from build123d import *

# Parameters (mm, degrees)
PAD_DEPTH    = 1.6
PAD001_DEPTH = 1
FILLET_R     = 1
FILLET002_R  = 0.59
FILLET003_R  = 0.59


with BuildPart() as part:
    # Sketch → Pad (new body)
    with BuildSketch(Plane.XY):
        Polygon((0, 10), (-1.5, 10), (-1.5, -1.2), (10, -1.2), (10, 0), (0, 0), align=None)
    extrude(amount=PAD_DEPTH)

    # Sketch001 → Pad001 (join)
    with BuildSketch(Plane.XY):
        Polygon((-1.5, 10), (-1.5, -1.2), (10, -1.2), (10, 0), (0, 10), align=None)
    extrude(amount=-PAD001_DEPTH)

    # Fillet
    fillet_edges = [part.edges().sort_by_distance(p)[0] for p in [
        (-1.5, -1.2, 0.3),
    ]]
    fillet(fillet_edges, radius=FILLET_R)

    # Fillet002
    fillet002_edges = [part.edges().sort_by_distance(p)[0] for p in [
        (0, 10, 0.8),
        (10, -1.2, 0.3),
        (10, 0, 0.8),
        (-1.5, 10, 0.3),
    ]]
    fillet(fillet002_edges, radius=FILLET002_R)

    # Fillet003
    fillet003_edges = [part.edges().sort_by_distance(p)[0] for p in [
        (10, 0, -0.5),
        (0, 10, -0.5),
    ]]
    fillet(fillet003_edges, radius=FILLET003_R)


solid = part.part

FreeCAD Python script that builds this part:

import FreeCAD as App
import Part
import Sketcher

V = App.Vector
Q = App.Units.Quantity


def edges_at(feature, points):
    """Names of the edges that pass closest to the given points."""
    edges = feature.Shape.Edges
    near = lambda p: min(range(len(edges)), key=lambda i: edges[i].distToShape(Part.Vertex(*p))[0])
    return sorted({f"Edge{near(p) + 1}" for p in points})


def add_polygon(sketch, points):
    """Adds a closed chain of lines whose ends are joined by coincident constraints."""
    first, n = sketch.GeometryCount, len(points)
    for a, b in zip(points, points[1:] + points[:1]):
        sketch.addGeometry(Part.LineSegment(App.Vector(*a, 0), App.Vector(*b, 0)), False)
    for i in range(n):
        sketch.addConstraint(Sketcher.Constraint("Coincident", first + i, 2, first + (i + 1) % n, 1))

doc = App.newDocument("Part")
params = doc.addObject("Spreadsheet::Sheet", "Params")
for row, (alias, value) in enumerate([
    ("sketch1_width", "10 mm"),
    ("sketch1_width2", "1.5 mm"),
    ("sketch1_height", "11.2 mm"),
    ("pad1_length", "1.6 mm"),
    ("sketch2_width", "11.5 mm"),
    ("sketch2_width2", "1.5 mm"),
    ("sketch2_height", "11.2 mm"),
    ("pad2_length", "1 mm"),
    ("fillet_radius", "1 mm"),
    ("fillet2_radius", "0.59 mm"),
    ("fillet3_radius", "0.59 mm"),
], start=1):
    params.set(f"A{row}", alias)
    params.set(f"B{row}", "=" + value)
    params.setAlias(f"B{row}", alias)

body = doc.addObject("PartDesign::Body", "Body")

# Sketch on XY plane
sketch1 = body.newObject("Sketcher::SketchObject", "Sketch")
sketch1.AttachmentSupport = (doc.getObject("XY_Plane"), [""])
sketch1.MapMode = "FlatFace"
add_polygon(sketch1, [(0, 10), (-1.5, 10), (-1.5, -1.2), (10, -1.2), (10, 0), (0, 0)])  # lines 0-5
sketch1.addConstraint([
    Sketcher.Constraint("Horizontal", 0),
    Sketcher.Constraint("Vertical", 1),
    Sketcher.Constraint("Horizontal", 2),
    Sketcher.Constraint("Vertical", 3),
    Sketcher.Constraint("Horizontal", 4),
    Sketcher.Constraint("Vertical", 5),
    Sketcher.Constraint("Coincident", 4, 2, -1, 1),
    Sketcher.Constraint("Equal", 4, 5),
    Sketcher.Constraint("DistanceX", 4, 2, 4, 1, 10.0),
    Sketcher.Constraint("DistanceX", 0, 2, 0, 1, 1.5),
    Sketcher.Constraint("DistanceY", 1, 2, 1, 1, 11.2),
])
sketch1.setExpression("Constraints[14]", "Params.sketch1_width")
sketch1.setExpression("Constraints[15]", "Params.sketch1_width2")
sketch1.setExpression("Constraints[16]", "Params.sketch1_height")
pad1 = body.newObject("PartDesign::Pad", "Pad")
pad1.Profile = sketch1
pad1.setExpression("Length", "Params.pad1_length")

# Sketch on XY plane
sketch2 = body.newObject("Sketcher::SketchObject", "Sketch001")
sketch2.AttachmentSupport = (doc.getObject("XY_Plane"), [""])
sketch2.MapMode = "FlatFace"
add_polygon(sketch2, [(-1.5, 10), (-1.5, -1.2), (10, -1.2), (10, 0), (0, 10)])  # lines 0-4
sketch2.addConstraint([
    Sketcher.Constraint("Vertical", 0),
    Sketcher.Constraint("Horizontal", 1),
    Sketcher.Constraint("Vertical", 2),
    Sketcher.Constraint("Horizontal", 4),
    Sketcher.Constraint("PointOnObject", 2, 2, -1),
    Sketcher.Constraint("PointOnObject", 3, 2, -2),
    Sketcher.Constraint("Angle", 3, Q("135 deg")),
    Sketcher.Constraint("DistanceX", 1, 1, 1, 2, 11.5),
    Sketcher.Constraint("DistanceX", 4, 2, 4, 1, 1.5),
    Sketcher.Constraint("DistanceY", 0, 2, 0, 1, 11.2),
])
sketch2.setExpression("Constraints[12]", "Params.sketch2_width")
sketch2.setExpression("Constraints[13]", "Params.sketch2_width2")
sketch2.setExpression("Constraints[14]", "Params.sketch2_height")
pad2 = body.newObject("PartDesign::Pad", "Pad001")
pad2.Profile = sketch2
pad2.setExpression("Length", "Params.pad2_length")
pad2.Reversed = True
doc.recompute()

fillet = body.newObject("PartDesign::Fillet", "Fillet")
fillet.Base = (pad2, edges_at(pad2, [(-1.5, -1.2, 0.3)]))
fillet.setExpression("Radius", "Params.fillet_radius")
doc.recompute()

fillet2 = body.newObject("PartDesign::Fillet", "Fillet001")
fillet2.Base = (fillet, edges_at(fillet, [
    (0, 10, 0.8),
    (10, -1.2, 0.3),
    (10, 0, 0.8),
    (-1.5, 10, 0.3),
]))
fillet2.setExpression("Radius", "Params.fillet2_radius")
doc.recompute()

fillet3 = body.newObject("PartDesign::Fillet", "Fillet002")
fillet3.Base = (fillet2, edges_at(fillet2, [(10, 0, -0.5), (0, 10, -0.5)]))
fillet3.setExpression("Radius", "Params.fillet3_radius")

doc.recompute()
